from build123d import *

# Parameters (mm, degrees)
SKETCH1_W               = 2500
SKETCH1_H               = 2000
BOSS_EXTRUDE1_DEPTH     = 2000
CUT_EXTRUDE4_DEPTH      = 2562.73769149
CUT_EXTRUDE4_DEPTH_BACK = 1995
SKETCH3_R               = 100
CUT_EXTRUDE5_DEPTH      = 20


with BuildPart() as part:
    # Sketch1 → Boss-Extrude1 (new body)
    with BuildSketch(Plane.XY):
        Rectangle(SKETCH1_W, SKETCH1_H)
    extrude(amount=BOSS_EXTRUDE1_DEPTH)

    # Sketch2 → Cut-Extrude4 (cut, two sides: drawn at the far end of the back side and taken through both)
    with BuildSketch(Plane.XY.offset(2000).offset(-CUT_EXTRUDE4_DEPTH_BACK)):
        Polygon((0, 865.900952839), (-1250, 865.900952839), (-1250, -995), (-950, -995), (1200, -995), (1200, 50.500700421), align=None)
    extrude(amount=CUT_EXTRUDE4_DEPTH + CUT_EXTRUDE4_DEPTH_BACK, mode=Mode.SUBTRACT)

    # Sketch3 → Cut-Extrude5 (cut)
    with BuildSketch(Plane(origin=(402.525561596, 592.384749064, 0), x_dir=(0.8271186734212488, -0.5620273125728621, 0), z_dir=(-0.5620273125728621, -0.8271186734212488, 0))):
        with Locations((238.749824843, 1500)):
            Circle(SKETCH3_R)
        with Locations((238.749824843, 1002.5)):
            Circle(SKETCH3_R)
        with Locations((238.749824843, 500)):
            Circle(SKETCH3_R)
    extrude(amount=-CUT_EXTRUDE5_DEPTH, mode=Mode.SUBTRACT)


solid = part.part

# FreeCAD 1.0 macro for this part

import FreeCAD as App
import Part
import Sketcher
from FreeCAD import Vector


def add_polygon(sketch, points):
    """Adds a closed chain of lines whose ends are joined by coincident constraints."""
    first, n = sketch.GeometryCount, len(points)
    for a, b in zip(points, points[1:] + points[:1]):
        sketch.addGeometry(Part.LineSegment(App.Vector(*a, 0), App.Vector(*b, 0)), False)
    for i in range(n):
        sketch.addConstraint(Sketcher.Constraint("Coincident", first + i, 2, first + (i + 1) % n, 1))

doc = App.newDocument("Part")
body = doc.addObject("PartDesign::Body", "Body")

sketch1 = body.newObject("Sketcher::SketchObject", "Sketch")
sketch1.AttachmentSupport = (doc.getObject("XY_Plane"), [""])
sketch1.MapMode = "FlatFace"
add_polygon(sketch1, [(-1250, 1000), (-1250, -1000), (1250, -1000), (1250, 1000)])
sketch1.addConstraint(Sketcher.Constraint("Vertical", 0))
sketch1.addConstraint(Sketcher.Constraint("Horizontal", 1))
sketch1.addConstraint(Sketcher.Constraint("Vertical", 2))
sketch1.addConstraint(Sketcher.Constraint("Horizontal", 3))
sketch1.addConstraint(Sketcher.Constraint("Symmetric", 0, 2, 2, 2, -1, 1))
sketch1.addConstraint(Sketcher.Constraint("DistanceX", 1, 1, 1, 2, 2500.0))
sketch1.addConstraint(Sketcher.Constraint("DistanceY", 0, 2, 0, 1, 2000.0))
pad1 = body.newObject("PartDesign::Pad", "Pad")
pad1.Profile = sketch1
pad1.Length = 2000

sketch2 = body.newObject("Sketcher::SketchObject", "Sketch001")
sketch2.AttachmentSupport = (doc.getObject("XY_Plane"), [""])
sketch2.MapMode = "FlatFace"
sketch2.AttachmentOffset = App.Placement(Vector(0, 0, 2000), App.Rotation())
add_polygon(sketch2, [(0, 866), (-1250, 866), (-1250, -995), (1200, -995), (1200, 51)])
sketch2.addConstraint(Sketcher.Constraint("Horizontal", 0))
sketch2.addConstraint(Sketcher.Constraint("Vertical", 1))
sketch2.addConstraint(Sketcher.Constraint("Horizontal", 2))
sketch2.addConstraint(Sketcher.Constraint("Vertical", 3))
sketch2.addConstraint(Sketcher.Constraint("PointOnObject", 4, 2, -2))
sketch2.addConstraint(Sketcher.Constraint("DistanceX", 0, 2, 0, 1, 1250.0))
sketch2.addConstraint(Sketcher.Constraint("DistanceX", 2, 1, 2, 2, 2450.0))
sketch2.addConstraint(Sketcher.Constraint("DistanceY", 1, 2, -1, 1, 995.0))
sketch2.addConstraint(Sketcher.Constraint("DistanceY", 3, 1, 3, 2, 1045.5007))
sketch2.addConstraint(Sketcher.Constraint("Distance", 4, 1450.819621))
pocket1 = body.newObject("PartDesign::Pocket", "Pocket")
pocket1.Profile = sketch2
pocket1.Type = "TwoLengths"
pocket1.Length = 2562.737691
pocket1.Length2 = 1995
pocket1.Reversed = True

sketch3 = body.newObject("Sketcher::SketchObject", "Sketch002")
sketch3.Placement = App.Placement(Vector(402.525562, 592.384749, 0), App.Rotation(Vector(0.827118673, -0.562027313, 0), Vector(0, 0, 1), Vector(-0.562027313, -0.827118673, 0), "ZXY"))
sketch3.addGeometry(Part.Circle(Vector(239, 1500, 0), Vector(0, 0, 1), 100), False)
sketch3.addGeometry(Part.Circle(Vector(239, 1002, 0), Vector(0, 0, 1), 100), False)
sketch3.addGeometry(Part.Circle(Vector(239, 500, 0), Vector(0, 0, 1), 100), False)
sketch3.addConstraint(Sketcher.Constraint("Equal", 0, 1))
sketch3.addConstraint(Sketcher.Constraint("Equal", 1, 2))
sketch3.addConstraint(Sketcher.Constraint("Vertical", 0, 3, 1, 3))
sketch3.addConstraint(Sketcher.Constraint("Vertical", 1, 3, 2, 3))
sketch3.addConstraint(Sketcher.Constraint("Diameter", 0, 200.0))
sketch3.addConstraint(Sketcher.Constraint("DistanceY", -1, 1, 0, 3, 1499.999999))
sketch3.addConstraint(Sketcher.Constraint("DistanceY", -1, 1, 2, 3, 500.0))
sketch3.addConstraint(Sketcher.Constraint("DistanceY", -1, 1, 1, 3, 1002.5))
sketch3.addConstraint(Sketcher.Constraint("DistanceX", -1, 1, 0, 3, 238.749825))
pocket2 = body.newObject("PartDesign::Pocket", "Pocket001")
pocket2.Profile = sketch3
pocket2.Length = 20

doc.recompute()
